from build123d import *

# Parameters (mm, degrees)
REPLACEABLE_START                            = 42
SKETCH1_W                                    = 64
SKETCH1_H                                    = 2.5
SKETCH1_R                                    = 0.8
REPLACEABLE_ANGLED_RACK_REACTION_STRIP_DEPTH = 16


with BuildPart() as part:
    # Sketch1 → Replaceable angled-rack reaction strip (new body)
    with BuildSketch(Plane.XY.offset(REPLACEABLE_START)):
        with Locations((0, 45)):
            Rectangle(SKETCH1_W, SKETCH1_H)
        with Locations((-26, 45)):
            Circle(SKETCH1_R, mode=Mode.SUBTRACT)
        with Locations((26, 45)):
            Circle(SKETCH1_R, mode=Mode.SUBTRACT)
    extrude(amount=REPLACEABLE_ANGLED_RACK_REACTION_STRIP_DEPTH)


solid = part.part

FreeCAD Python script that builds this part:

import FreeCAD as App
import Part
import Sketcher
Q = App.Units.Quantity

doc = App.newDocument("Part")
body = doc.addObject("PartDesign::Body", "Body")

sketch1 = body.newObject("Sketcher::SketchObject", "Sketch")
sketch1.AttachmentSupport = (doc.getObject("XY_Plane"), [""])
sketch1.MapMode = "FlatFace"
sketch1.AttachmentOffset = App.Placement(App.Vector(0, 0, 42), App.Rotation())
sketch1.addGeometry([
    Part.LineSegment(App.Vector(-32, 46.25, 0), App.Vector(-32, 43.75, 0)),
    Part.LineSegment(App.Vector(-32, 43.75, 0), App.Vector(32, 43.75, 0)),
    Part.LineSegment(App.Vector(32, 43.75, 0), App.Vector(32, 46.25, 0)),
    Part.LineSegment(App.Vector(32, 46.25, 0), App.Vector(-32, 46.25, 0)),
    Part.Circle(App.Vector(-26, 45, 0), App.Vector(0, 0, 1), 0.8),
    Part.Circle(App.Vector(26, 45, 0), App.Vector(0, 0, 1), 0.8),
], False)
sketch1.addConstraint([
    Sketcher.Constraint("Coincident", 0, 2, 1, 1),
    Sketcher.Constraint("Coincident", 1, 2, 2, 1),
    Sketcher.Constraint("Coincident", 2, 2, 3, 1),
    Sketcher.Constraint("Coincident", 3, 2, 0, 1),
    Sketcher.Constraint("Vertical", 0),
    Sketcher.Constraint("Horizontal", 1),
    Sketcher.Constraint("Vertical", 2),
    Sketcher.Constraint("Horizontal", 3),
    Sketcher.Constraint("Equal", 4, 5),
    Sketcher.Constraint("Symmetric", 4, 3, 5, 3, -2),
    Sketcher.Constraint("Diameter", 4, Q("1.6 mm")),
    Sketcher.Constraint("DistanceX", 1, 1, 1, 2, Q("64 mm")),
    Sketcher.Constraint("DistanceY", 0, 2, 0, 1, Q("2.5 mm")),
    Sketcher.Constraint("DistanceX", 4, 3, -1, 1, Q("26 mm")),
    Sketcher.Constraint("DistanceY", -1, 1, 4, 3, Q("45 mm")),
    Sketcher.Constraint("DistanceX", 0, 2, -1, 1, Q("32 mm")),
    Sketcher.Constraint("DistanceY", -1, 1, 0, 2, Q("43.75 mm")),
])
pad1 = body.newObject("PartDesign::Pad", "Pad")
pad1.Profile = sketch1
pad1.Length = 16

doc.recompute()
